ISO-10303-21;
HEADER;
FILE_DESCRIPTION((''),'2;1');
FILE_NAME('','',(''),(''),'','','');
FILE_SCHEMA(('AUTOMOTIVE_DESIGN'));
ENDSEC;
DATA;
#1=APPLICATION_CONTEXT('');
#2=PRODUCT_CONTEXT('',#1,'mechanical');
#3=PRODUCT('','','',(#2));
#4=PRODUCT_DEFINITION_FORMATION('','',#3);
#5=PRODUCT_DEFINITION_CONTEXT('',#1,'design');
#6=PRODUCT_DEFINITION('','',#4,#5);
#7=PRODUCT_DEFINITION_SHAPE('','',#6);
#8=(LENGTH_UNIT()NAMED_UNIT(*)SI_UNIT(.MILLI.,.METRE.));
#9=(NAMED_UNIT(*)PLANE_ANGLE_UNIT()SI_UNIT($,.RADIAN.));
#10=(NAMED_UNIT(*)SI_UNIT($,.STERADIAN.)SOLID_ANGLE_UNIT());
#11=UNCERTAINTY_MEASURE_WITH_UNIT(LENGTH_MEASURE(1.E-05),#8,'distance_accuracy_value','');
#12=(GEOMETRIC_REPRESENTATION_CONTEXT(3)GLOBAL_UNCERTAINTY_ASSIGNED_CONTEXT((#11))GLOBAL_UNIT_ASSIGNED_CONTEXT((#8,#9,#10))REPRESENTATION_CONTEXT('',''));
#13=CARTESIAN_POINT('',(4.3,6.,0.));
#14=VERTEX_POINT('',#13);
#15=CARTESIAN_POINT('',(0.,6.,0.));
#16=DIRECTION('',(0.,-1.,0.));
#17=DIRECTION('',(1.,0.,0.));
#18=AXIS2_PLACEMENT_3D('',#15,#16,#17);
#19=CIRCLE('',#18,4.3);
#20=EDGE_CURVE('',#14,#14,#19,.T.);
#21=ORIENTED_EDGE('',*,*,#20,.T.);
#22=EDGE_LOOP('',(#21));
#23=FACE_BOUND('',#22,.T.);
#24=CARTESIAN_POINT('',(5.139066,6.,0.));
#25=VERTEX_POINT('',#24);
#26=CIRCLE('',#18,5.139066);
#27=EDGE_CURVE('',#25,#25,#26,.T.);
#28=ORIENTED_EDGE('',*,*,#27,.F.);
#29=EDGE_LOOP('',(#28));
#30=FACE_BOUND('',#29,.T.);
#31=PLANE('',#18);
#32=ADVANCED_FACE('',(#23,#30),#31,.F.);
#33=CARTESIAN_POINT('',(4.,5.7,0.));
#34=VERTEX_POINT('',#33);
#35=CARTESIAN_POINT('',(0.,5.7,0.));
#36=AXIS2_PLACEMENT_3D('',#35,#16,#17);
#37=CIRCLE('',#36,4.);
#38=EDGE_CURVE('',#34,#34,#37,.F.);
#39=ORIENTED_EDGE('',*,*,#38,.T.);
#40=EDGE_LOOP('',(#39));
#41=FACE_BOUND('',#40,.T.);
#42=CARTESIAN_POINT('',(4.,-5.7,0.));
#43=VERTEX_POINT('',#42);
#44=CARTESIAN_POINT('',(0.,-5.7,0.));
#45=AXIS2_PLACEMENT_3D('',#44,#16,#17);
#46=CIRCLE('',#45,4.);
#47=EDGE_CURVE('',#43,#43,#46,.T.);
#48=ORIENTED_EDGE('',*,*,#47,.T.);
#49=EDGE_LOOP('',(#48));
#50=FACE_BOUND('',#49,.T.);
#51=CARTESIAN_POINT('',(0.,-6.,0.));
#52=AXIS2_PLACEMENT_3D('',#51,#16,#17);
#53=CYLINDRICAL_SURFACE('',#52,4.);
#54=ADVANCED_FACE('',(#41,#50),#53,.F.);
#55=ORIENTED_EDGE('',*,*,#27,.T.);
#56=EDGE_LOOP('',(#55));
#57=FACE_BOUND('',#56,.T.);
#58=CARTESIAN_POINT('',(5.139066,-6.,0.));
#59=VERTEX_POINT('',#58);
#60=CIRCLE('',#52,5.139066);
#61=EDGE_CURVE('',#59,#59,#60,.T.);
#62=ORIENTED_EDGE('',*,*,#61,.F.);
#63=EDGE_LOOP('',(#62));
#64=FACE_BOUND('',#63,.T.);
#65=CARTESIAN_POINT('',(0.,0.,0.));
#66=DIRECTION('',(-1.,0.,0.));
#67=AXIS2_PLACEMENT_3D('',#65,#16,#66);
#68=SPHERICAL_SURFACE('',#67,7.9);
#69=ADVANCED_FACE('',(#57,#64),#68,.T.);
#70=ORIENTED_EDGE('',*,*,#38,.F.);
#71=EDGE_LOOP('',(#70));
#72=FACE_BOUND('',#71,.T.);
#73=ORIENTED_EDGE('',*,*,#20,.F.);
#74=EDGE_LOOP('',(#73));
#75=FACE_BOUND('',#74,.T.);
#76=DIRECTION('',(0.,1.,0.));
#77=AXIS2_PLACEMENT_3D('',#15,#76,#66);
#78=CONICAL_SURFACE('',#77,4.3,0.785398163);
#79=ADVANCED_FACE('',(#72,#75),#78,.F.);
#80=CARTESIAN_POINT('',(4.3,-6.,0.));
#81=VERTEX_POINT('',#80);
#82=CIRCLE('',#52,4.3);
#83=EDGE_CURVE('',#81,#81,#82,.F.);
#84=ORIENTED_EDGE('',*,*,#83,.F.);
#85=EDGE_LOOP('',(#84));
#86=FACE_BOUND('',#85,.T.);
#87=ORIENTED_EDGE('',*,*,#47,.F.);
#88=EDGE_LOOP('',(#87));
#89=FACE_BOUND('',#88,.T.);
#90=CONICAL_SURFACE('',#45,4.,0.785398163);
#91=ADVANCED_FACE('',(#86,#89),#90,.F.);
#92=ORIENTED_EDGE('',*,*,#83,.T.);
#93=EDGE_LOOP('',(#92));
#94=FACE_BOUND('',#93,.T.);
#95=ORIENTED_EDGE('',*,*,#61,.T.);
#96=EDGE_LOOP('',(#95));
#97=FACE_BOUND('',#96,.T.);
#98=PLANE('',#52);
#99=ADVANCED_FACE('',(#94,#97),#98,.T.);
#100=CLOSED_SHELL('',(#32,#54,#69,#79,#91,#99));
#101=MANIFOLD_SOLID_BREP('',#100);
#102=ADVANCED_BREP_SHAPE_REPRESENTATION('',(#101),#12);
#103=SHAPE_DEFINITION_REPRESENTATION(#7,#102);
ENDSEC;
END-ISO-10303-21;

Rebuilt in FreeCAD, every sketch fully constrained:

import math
import FreeCAD as App
import Part
import Sketcher

V = App.Vector


def edges_at(feature, points):
    """Names of the edges that pass closest to the given points."""
    edges = feature.Shape.Edges
    near = lambda p: min(range(len(edges)), key=lambda i: edges[i].distToShape(Part.Vertex(*p))[0])
    return sorted({f"Edge{near(p) + 1}" for p in points})

doc = App.newDocument("Part")
body = doc.addObject("PartDesign::Body", "Body")

sketch1 = doc.addObject("Sketcher::SketchObject", "Sketch")
body.addObject(sketch1)
sketch1.AttachmentSupport = (doc.XY_Plane, [""])
sketch1.MapMode = "FlatFace"
sketch1.addGeometry(Part.LineSegment(V(-4, -6, 0), V(-4, 6, 0)), False)
sketch1.addGeometry(Part.LineSegment(V(-4, 6, 0), V(-5.1, 6, 0)), False)
sketch1.addGeometry(Part.ArcOfCircle(Part.Circle(V(0, 0, 0), V(0, 0, 1), 7.9), math.radians(131), math.radians(229)), False)
sketch1.addGeometry(Part.LineSegment(V(-5.1, -6, 0), V(-4, -6, 0)), False)
sketch1.addConstraint(Sketcher.Constraint("Coincident", 0, 2, 1, 1))
sketch1.addConstraint(Sketcher.Constraint("Coincident", 1, 2, 2, 1))
sketch1.addConstraint(Sketcher.Constraint("Coincident", 2, 2, 3, 1))
sketch1.addConstraint(Sketcher.Constraint("Coincident", 3, 2, 0, 1))
sketch1.addConstraint(Sketcher.Constraint("Vertical", 0))
sketch1.addConstraint(Sketcher.Constraint("Horizontal", 1))
sketch1.addConstraint(Sketcher.Constraint("Horizontal", 3))
sketch1.addConstraint(Sketcher.Constraint("Coincident", 2, 3, -1, 1))
sketch1.addConstraint(Sketcher.Constraint("Vertical", 1, 2, 2, 2))
sketch1.addConstraint(Sketcher.Constraint("Radius", 2, 7.9))
sketch1.addConstraint(Sketcher.Constraint("DistanceY", 0, 1, 0, 2, 12.0))
sketch1.addConstraint(Sketcher.Constraint("DistanceX", 0, 2, -1, 1, 4.0))
revolution = doc.addObject("PartDesign::Revolution", "Revolution")
body.addObject(revolution)
revolution.Profile = sketch1
revolution.ReferenceAxis = (sketch1, ["V_Axis"])
revolution.Angle = 360
doc.recompute()

chamfer = doc.addObject("PartDesign::Chamfer", "Chamfer")
body.addObject(chamfer)
chamfer.Base = (revolution, edges_at(revolution, [(4, 6, 0), (4, -6, 0)]))
chamfer.Size = 0.3

doc.recompute()
